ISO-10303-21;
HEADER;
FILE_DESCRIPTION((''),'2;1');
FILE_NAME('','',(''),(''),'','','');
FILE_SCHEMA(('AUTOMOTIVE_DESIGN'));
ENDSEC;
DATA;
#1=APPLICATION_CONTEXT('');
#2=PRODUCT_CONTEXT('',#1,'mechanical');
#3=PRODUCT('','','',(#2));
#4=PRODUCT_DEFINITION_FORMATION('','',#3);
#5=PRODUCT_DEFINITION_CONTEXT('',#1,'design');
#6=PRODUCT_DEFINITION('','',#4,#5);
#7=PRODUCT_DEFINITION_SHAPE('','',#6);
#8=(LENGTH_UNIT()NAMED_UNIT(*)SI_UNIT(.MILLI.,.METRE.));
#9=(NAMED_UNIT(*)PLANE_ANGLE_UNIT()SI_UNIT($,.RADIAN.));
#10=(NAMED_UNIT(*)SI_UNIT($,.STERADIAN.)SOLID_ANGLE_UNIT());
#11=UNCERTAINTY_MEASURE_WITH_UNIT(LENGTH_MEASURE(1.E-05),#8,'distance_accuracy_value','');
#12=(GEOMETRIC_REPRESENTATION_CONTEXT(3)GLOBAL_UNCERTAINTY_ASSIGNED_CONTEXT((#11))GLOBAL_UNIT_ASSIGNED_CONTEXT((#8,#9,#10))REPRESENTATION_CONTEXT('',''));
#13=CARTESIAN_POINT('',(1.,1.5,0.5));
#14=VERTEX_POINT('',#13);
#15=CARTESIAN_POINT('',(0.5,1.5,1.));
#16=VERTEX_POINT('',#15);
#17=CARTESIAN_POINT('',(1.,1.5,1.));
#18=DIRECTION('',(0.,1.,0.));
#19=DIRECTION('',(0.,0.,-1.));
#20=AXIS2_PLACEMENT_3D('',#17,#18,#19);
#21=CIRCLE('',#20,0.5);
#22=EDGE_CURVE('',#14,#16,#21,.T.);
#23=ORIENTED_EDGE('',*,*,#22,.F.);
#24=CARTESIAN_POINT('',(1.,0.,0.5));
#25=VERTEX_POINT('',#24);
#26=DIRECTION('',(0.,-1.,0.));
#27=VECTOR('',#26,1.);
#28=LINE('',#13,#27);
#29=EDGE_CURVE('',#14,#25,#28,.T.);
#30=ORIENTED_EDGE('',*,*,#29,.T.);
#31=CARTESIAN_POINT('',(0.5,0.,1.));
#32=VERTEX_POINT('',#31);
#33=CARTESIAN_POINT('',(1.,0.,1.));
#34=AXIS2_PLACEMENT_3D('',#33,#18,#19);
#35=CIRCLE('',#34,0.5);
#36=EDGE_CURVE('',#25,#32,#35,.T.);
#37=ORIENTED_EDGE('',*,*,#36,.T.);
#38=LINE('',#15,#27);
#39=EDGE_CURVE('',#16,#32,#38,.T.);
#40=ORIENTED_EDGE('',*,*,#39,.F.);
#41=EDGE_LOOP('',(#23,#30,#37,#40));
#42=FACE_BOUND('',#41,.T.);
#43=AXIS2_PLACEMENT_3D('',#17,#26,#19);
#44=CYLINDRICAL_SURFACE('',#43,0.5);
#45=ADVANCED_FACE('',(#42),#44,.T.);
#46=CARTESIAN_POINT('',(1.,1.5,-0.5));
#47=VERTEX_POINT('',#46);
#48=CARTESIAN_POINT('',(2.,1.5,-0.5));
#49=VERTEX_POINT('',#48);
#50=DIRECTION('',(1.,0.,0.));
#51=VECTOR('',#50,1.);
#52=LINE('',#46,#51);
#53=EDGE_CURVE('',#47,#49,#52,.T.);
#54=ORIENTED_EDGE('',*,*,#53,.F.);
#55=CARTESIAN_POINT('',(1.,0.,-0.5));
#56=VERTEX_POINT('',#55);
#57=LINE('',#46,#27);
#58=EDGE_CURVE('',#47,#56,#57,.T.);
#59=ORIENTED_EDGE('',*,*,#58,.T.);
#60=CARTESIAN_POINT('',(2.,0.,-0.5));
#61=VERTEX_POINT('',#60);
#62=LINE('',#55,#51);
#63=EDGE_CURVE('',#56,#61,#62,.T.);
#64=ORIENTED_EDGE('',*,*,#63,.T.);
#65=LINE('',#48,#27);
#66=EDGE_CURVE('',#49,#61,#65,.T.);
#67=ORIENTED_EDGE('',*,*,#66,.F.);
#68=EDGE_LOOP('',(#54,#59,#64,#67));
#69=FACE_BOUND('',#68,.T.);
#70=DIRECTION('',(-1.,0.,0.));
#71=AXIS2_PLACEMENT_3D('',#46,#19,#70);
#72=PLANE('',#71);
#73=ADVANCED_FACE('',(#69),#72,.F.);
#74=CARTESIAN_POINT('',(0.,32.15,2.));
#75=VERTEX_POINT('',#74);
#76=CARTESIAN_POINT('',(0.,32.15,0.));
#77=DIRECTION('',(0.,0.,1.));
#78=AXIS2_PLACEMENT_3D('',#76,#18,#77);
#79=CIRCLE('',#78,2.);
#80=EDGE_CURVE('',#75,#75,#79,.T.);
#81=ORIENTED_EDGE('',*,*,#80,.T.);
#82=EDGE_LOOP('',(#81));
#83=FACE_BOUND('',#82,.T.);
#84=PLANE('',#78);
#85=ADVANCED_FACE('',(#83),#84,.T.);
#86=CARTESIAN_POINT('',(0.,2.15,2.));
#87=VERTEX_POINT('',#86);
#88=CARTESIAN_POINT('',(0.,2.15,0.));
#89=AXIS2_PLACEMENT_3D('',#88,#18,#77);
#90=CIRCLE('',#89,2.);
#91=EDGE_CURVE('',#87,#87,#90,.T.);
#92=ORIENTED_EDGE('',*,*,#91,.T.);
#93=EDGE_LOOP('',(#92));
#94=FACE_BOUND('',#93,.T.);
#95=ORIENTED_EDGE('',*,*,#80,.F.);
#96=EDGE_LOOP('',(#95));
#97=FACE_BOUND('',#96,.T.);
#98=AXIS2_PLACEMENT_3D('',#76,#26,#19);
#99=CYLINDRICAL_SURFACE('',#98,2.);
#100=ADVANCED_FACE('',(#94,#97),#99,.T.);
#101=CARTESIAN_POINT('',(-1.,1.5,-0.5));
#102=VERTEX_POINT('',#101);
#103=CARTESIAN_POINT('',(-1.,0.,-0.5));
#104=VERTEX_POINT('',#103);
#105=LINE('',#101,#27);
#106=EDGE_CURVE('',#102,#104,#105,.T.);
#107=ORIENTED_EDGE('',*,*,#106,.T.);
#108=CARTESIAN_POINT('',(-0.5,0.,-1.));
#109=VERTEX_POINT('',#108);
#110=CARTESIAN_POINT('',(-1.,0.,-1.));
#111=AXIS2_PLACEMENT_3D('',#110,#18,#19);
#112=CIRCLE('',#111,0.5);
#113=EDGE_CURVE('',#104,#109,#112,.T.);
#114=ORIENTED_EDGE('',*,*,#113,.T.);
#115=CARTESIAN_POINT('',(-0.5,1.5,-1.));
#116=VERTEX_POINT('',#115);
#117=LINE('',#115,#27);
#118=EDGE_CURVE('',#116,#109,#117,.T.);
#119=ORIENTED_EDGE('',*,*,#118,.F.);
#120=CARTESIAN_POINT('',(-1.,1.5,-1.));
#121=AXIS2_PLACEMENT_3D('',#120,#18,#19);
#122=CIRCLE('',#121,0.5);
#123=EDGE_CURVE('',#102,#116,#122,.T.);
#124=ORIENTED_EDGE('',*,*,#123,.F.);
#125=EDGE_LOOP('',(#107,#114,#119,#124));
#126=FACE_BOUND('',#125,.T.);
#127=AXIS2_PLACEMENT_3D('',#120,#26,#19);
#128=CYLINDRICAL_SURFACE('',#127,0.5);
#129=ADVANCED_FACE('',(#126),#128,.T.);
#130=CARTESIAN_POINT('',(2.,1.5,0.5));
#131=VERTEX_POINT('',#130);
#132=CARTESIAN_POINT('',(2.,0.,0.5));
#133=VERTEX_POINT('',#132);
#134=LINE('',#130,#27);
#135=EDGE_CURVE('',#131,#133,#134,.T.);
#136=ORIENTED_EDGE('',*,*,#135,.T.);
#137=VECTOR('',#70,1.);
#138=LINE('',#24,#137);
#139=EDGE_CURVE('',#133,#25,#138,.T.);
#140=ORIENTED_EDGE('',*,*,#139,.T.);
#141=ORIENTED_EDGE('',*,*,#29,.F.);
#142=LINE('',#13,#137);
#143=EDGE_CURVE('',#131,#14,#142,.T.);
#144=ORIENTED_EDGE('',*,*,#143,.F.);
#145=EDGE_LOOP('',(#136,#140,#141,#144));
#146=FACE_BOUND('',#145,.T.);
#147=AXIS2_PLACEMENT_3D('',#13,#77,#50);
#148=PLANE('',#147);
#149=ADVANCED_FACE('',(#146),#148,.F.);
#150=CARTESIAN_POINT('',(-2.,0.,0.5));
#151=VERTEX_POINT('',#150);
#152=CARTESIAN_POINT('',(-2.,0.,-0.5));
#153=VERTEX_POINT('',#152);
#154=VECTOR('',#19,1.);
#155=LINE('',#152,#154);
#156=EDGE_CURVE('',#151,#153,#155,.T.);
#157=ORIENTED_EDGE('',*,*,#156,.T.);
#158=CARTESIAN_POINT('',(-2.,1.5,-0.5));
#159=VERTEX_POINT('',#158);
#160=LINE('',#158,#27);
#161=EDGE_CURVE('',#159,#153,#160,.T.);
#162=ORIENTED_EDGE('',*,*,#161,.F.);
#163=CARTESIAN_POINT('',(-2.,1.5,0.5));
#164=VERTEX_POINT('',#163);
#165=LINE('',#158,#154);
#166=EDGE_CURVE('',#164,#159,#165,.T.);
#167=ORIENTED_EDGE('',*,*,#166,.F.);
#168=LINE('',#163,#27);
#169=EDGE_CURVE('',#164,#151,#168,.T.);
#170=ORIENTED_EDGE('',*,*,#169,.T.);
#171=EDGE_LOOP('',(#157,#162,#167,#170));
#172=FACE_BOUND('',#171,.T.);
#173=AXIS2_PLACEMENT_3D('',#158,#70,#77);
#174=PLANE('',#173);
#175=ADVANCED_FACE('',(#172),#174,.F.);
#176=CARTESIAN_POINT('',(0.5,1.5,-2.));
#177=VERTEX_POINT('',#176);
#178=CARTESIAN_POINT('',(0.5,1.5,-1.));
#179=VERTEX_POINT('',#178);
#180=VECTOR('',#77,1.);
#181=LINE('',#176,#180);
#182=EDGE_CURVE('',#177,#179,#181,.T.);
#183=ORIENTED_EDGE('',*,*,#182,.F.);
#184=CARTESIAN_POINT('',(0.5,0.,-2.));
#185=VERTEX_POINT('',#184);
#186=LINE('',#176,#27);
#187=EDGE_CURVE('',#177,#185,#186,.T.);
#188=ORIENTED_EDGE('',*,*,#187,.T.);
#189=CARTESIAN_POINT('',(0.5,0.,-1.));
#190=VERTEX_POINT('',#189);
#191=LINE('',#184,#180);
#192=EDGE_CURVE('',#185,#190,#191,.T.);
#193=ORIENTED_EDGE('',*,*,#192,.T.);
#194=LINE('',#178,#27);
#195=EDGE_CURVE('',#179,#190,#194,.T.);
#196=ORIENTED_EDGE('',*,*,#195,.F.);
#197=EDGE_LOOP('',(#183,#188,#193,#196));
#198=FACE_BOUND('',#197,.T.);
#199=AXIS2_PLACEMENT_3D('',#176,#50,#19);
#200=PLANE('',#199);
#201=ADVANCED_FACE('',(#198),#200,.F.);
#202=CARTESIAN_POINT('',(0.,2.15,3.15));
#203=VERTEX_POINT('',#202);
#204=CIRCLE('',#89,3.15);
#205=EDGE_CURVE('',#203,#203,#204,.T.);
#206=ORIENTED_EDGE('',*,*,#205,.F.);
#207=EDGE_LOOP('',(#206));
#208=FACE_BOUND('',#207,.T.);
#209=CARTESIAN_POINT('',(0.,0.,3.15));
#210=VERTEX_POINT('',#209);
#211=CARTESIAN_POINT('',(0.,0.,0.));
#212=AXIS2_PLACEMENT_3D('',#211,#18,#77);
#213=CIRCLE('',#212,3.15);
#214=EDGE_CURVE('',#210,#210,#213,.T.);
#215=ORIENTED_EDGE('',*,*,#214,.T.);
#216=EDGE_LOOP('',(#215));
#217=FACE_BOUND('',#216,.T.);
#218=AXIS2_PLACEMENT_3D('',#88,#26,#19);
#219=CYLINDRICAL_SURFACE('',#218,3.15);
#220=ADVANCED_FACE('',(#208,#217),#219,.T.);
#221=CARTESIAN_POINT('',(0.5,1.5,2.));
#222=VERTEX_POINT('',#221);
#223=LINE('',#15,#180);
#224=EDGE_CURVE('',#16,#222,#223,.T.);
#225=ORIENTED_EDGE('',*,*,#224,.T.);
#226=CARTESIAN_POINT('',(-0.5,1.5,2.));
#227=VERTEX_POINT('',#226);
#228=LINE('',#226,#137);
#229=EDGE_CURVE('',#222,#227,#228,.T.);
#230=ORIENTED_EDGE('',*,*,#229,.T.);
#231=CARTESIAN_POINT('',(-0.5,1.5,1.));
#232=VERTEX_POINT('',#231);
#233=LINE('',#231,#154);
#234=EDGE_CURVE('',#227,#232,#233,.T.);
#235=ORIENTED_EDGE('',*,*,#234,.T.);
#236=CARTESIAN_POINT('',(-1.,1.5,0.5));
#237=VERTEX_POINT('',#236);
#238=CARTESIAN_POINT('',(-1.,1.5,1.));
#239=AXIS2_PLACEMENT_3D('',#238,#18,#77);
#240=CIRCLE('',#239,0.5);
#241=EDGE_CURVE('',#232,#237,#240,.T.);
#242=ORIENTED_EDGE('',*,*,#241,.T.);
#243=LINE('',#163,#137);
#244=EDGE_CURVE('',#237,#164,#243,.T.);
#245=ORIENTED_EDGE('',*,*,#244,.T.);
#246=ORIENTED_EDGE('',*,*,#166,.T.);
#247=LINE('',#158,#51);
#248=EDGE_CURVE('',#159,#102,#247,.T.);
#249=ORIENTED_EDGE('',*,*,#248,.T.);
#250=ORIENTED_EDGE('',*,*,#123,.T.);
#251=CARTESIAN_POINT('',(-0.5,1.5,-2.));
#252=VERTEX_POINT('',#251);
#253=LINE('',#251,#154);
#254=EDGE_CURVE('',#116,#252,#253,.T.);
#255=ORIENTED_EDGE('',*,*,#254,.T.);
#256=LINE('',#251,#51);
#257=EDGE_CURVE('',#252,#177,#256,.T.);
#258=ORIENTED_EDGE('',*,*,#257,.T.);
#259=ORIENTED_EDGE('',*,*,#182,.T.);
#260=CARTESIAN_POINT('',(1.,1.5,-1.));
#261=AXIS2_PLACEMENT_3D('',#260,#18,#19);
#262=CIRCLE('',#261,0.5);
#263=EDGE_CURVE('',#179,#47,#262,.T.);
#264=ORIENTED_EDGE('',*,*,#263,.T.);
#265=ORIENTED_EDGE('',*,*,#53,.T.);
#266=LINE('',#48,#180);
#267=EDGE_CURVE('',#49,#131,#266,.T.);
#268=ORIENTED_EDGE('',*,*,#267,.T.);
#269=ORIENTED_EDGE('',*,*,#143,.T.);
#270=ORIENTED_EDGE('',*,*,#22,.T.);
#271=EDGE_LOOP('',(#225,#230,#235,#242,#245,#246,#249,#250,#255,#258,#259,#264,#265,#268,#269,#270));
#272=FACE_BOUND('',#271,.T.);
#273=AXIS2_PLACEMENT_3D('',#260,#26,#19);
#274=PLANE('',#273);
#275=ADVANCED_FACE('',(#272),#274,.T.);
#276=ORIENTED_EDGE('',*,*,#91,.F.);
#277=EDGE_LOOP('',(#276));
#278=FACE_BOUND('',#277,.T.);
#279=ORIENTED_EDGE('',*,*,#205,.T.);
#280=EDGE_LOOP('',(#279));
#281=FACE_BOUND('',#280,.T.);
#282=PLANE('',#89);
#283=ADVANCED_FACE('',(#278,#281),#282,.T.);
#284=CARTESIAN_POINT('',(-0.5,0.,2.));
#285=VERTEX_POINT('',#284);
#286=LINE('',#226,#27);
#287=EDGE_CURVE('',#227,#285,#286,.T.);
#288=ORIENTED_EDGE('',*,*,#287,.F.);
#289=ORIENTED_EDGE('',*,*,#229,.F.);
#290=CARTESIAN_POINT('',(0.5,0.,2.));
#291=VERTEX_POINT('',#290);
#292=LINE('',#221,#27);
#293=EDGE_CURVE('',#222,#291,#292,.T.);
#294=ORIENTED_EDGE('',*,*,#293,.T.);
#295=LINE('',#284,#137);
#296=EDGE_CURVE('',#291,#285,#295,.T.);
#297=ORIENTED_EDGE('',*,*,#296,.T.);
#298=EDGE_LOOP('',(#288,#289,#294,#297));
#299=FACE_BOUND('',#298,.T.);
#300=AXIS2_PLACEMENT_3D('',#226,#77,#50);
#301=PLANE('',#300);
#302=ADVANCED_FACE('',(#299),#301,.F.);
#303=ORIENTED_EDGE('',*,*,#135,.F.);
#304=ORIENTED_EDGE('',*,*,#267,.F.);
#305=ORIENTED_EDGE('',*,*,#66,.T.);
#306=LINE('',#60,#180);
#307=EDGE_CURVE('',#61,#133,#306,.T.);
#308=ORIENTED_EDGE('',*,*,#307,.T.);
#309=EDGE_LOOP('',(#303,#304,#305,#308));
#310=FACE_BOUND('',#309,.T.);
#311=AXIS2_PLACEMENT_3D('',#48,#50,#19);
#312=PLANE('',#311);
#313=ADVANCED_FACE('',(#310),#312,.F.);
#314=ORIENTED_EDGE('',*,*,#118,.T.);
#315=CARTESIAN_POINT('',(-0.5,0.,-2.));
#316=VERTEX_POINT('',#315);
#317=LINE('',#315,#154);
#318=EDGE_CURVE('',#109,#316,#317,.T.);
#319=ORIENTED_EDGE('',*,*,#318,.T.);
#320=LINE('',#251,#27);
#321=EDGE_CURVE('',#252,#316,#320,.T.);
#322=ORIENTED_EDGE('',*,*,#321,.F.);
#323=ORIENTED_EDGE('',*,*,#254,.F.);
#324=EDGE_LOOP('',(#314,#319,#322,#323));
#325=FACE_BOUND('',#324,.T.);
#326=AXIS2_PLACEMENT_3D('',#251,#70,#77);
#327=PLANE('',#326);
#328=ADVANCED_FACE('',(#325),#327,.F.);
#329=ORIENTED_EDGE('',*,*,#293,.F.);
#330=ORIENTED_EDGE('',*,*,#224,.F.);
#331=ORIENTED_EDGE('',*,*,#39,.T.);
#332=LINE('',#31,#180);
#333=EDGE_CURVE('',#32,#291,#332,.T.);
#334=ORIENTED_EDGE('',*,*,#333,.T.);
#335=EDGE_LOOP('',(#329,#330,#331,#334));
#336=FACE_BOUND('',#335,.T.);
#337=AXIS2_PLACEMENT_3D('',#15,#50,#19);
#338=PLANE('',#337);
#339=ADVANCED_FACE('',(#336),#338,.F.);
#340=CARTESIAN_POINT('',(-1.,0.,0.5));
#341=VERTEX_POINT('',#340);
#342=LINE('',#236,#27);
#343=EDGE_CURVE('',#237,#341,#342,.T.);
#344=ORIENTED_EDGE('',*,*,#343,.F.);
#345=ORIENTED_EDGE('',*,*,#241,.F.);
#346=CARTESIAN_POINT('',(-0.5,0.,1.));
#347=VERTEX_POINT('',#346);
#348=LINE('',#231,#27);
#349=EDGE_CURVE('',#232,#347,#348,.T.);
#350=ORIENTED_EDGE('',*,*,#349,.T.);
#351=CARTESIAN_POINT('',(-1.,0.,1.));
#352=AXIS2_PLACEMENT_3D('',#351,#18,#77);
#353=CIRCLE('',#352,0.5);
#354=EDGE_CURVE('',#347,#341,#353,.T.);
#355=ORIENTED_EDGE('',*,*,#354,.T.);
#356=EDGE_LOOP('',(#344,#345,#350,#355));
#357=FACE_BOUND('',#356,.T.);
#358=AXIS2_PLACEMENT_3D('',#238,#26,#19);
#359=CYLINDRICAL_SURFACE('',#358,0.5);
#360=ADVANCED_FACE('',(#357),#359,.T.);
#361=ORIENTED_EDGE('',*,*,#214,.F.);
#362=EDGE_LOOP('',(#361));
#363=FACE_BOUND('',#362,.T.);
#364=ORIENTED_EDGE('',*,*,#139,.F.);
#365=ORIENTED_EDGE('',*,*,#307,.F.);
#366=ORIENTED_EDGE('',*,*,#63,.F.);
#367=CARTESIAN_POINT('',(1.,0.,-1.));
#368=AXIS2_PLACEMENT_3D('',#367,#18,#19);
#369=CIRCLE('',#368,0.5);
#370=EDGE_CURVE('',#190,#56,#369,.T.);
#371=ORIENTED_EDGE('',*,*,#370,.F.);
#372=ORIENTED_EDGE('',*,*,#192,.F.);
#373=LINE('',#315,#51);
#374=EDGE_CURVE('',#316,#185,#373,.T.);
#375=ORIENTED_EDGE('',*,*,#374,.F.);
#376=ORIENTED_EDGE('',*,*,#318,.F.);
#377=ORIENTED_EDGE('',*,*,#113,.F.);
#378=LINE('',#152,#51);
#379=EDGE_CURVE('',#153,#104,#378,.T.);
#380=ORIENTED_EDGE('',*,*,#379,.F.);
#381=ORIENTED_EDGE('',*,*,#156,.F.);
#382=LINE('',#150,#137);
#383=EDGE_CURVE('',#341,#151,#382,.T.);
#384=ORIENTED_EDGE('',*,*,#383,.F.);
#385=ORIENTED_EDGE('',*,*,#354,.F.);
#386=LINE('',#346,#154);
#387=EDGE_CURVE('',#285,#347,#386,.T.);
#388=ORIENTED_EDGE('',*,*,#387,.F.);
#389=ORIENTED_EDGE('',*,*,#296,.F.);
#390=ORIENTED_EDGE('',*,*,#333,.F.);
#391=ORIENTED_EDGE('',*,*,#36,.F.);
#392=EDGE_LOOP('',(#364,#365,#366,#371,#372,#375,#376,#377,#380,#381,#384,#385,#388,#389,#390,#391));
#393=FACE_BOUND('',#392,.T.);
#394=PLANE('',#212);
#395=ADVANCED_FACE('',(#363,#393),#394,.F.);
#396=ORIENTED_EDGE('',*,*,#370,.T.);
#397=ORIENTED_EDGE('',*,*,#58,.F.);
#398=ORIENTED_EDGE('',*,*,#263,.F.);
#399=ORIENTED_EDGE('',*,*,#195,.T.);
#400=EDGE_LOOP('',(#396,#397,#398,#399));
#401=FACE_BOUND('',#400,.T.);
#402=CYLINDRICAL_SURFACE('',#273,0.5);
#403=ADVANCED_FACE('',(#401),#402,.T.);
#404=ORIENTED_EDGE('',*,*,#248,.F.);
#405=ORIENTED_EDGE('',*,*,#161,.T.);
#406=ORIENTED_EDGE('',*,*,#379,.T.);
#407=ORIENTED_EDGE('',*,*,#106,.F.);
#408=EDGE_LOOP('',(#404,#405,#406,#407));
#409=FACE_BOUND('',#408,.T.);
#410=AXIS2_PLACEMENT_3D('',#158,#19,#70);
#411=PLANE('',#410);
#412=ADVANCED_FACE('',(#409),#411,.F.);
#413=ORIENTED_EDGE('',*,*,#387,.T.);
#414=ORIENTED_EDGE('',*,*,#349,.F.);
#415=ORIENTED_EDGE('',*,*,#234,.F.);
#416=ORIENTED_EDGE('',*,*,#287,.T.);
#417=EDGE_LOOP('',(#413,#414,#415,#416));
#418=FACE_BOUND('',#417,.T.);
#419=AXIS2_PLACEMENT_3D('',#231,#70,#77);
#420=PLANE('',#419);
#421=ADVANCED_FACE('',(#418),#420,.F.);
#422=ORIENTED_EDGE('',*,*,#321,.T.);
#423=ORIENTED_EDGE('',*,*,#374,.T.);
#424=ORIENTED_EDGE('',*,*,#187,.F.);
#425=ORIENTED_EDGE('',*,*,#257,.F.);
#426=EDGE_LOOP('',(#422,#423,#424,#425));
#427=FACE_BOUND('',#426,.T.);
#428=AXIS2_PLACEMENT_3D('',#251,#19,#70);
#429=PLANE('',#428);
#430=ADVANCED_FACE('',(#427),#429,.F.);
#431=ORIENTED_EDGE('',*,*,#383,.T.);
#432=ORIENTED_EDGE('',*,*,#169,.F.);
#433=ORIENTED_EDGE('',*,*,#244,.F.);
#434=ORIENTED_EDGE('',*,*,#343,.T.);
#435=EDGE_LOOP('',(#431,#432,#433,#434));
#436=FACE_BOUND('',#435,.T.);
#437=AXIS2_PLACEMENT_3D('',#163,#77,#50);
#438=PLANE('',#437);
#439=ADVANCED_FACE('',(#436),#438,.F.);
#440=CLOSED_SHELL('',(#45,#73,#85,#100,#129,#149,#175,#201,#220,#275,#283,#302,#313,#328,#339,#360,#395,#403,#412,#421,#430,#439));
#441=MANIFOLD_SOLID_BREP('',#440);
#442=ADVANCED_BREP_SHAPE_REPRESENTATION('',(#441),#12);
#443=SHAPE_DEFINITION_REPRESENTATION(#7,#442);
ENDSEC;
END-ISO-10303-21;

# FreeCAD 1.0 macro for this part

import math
import FreeCAD as App
import Part
import Sketcher
from FreeCAD import Vector
Q = App.Units.Quantity

doc = App.newDocument("Part")
body = doc.addObject("PartDesign::Body", "Body")

# Sketch on XZ plane
sketch1 = body.newObject("Sketcher::SketchObject", "Sketch")
sketch1.AttachmentSupport = (doc.getObject("XZ_Plane"), [""])
sketch1.MapMode = "FlatFace"
sketch1.addGeometry(Part.Circle(Vector(0, 0, 0), Vector(0, 0, 1), 3.1), False)
sketch1.addConstraint([
    Sketcher.Constraint("Coincident", 0, 3, -1, 1),
    Sketcher.Constraint("Diameter", 0, Q("6.3 mm")),
])
pad1 = body.newObject("PartDesign::Pad", "Pad")
pad1.Profile = sketch1
pad1.Length = 2.15
pad1.Reversed = True

# Sketch on XZ plane
sketch2 = body.newObject("Sketcher::SketchObject", "Sketch001")
sketch2.AttachmentSupport = (doc.getObject("XZ_Plane"), [""])
sketch2.MapMode = "FlatFace"
sketch2.AttachmentOffset = App.Placement(Vector(0, 0, -2.15), App.Rotation())
sketch2.addGeometry(Part.Circle(Vector(0, 0, 0), Vector(0, 0, 1), 2), False)
sketch2.addConstraint([
    Sketcher.Constraint("Coincident", 0, 3, -1, 1),
    Sketcher.Constraint("Diameter", 0, Q("4 mm")),
])
pad2 = body.newObject("PartDesign::Pad", "Pad001")
pad2.Profile = sketch2
pad2.Length = 30
pad2.Reversed = True

# Sketch on XZ plane
sketch3 = body.newObject("Sketcher::SketchObject", "Sketch002")
sketch3.AttachmentSupport = (doc.getObject("XZ_Plane"), [""])
sketch3.MapMode = "FlatFace"
sketch3.addGeometry([
    Part.LineSegment(Vector(-0.5, 2, 0), Vector(-0.5, 1, 0)),  # 0
    Part.ArcOfCircle(Part.Circle(Vector(-1, 1, 0), Vector(0, 0, 1), 0.5), math.radians(-90), math.radians(0)),  # 1
    Part.LineSegment(Vector(-1, 0.5, 0), Vector(-2, 0.5, 0)),  # 2
    Part.LineSegment(Vector(-2, 0.5, 0), Vector(-2, -0.5, 0)),  # 3
    Part.LineSegment(Vector(-2, -0.5, 0), Vector(-1, -0.5, 0)),  # 4
    Part.ArcOfCircle(Part.Circle(Vector(-1, -1, 0), Vector(0, 0, 1), 0.5), math.radians(0), math.radians(90)),  # 5
    Part.LineSegment(Vector(-0.5, -1, 0), Vector(-0.5, -2, 0)),  # 6
    Part.LineSegment(Vector(-0.5, -2, 0), Vector(0.5, -2, 0)),  # 7
    Part.LineSegment(Vector(0.5, -2, 0), Vector(0.5, -1, 0)),  # 8
    Part.ArcOfCircle(Part.Circle(Vector(1, -1, 0), Vector(0, 0, 1), 0.5), math.radians(90), math.radians(180)),  # 9
    Part.LineSegment(Vector(1, -0.5, 0), Vector(2, -0.5, 0)),  # 10
    Part.LineSegment(Vector(2, -0.5, 0), Vector(2, 0.5, 0)),  # 11
    Part.LineSegment(Vector(2, 0.5, 0), Vector(1, 0.5, 0)),  # 12
    Part.ArcOfCircle(Part.Circle(Vector(1, 1, 0), Vector(0, 0, 1), 0.5), math.radians(180), math.radians(270)),  # 13
    Part.LineSegment(Vector(0.5, 1, 0), Vector(0.5, 2, 0)),  # 14
    Part.LineSegment(Vector(0.5, 2, 0), Vector(-0.5, 2, 0)),  # 15
], False)
sketch3.addConstraint([
    Sketcher.Constraint("Tangent", 0, 2, 1, 2),
    Sketcher.Constraint("Tangent", 1, 1, 2, 1),
    Sketcher.Constraint("Coincident", 2, 2, 3, 1),
    Sketcher.Constraint("Coincident", 3, 2, 4, 1),
    Sketcher.Constraint("Tangent", 4, 2, 5, 2),
    Sketcher.Constraint("Tangent", 5, 1, 6, 1),
    Sketcher.Constraint("Coincident", 6, 2, 7, 1),
    Sketcher.Constraint("Coincident", 7, 2, 8, 1),
    Sketcher.Constraint("Tangent", 8, 2, 9, 2),
    Sketcher.Constraint("Tangent", 9, 1, 10, 1),
    Sketcher.Constraint("Coincident", 10, 2, 11, 1),
    Sketcher.Constraint("Coincident", 11, 2, 12, 1),
    Sketcher.Constraint("Tangent", 12, 2, 13, 2),
    Sketcher.Constraint("Tangent", 13, 1, 14, 1),
    Sketcher.Constraint("Coincident", 14, 2, 15, 1),
    Sketcher.Constraint("Coincident", 15, 2, 0, 1),
    Sketcher.Constraint("Vertical", 0),
    Sketcher.Constraint("Horizontal", 2),
    Sketcher.Constraint("Vertical", 3),
    Sketcher.Constraint("Horizontal", 4),
    Sketcher.Constraint("Vertical", 6),
    Sketcher.Constraint("Horizontal", 7),
    Sketcher.Constraint("Vertical", 8),
    Sketcher.Constraint("Horizontal", 10),
    Sketcher.Constraint("Vertical", 11),
    Sketcher.Constraint("Horizontal", 12),
    Sketcher.Constraint("Vertical", 14),
    Sketcher.Constraint("Horizontal", 15),
    Sketcher.Constraint("Equal", 1, 5),
    Sketcher.Constraint("Equal", 5, 9),
    Sketcher.Constraint("Equal", 9, 13),
    Sketcher.Constraint("Symmetric", 1, 3, 9, 3, -1, 1),
    Sketcher.Constraint("Symmetric", 5, 3, 13, 3, -1, 1),
    Sketcher.Constraint("Symmetric", 5, 3, 9, 3, -2),
    Sketcher.Constraint("Equal", 4, 7),
    Sketcher.Constraint("Equal", 7, 10),
    Sketcher.Constraint("Equal", 15, 0),
    Sketcher.Constraint("Equal", 0, 3),
    Sketcher.Constraint("Equal", 3, 6),
    Sketcher.Constraint("Radius", 1, Q("0.5 mm")),
    Sketcher.Constraint("DistanceX", 2, 2, 2, 1, Q("1 mm")),
])
pocket1 = body.newObject("PartDesign::Pocket", "Pocket")
pocket1.Profile = sketch3
pocket1.Length = 1.5

doc.recompute()
